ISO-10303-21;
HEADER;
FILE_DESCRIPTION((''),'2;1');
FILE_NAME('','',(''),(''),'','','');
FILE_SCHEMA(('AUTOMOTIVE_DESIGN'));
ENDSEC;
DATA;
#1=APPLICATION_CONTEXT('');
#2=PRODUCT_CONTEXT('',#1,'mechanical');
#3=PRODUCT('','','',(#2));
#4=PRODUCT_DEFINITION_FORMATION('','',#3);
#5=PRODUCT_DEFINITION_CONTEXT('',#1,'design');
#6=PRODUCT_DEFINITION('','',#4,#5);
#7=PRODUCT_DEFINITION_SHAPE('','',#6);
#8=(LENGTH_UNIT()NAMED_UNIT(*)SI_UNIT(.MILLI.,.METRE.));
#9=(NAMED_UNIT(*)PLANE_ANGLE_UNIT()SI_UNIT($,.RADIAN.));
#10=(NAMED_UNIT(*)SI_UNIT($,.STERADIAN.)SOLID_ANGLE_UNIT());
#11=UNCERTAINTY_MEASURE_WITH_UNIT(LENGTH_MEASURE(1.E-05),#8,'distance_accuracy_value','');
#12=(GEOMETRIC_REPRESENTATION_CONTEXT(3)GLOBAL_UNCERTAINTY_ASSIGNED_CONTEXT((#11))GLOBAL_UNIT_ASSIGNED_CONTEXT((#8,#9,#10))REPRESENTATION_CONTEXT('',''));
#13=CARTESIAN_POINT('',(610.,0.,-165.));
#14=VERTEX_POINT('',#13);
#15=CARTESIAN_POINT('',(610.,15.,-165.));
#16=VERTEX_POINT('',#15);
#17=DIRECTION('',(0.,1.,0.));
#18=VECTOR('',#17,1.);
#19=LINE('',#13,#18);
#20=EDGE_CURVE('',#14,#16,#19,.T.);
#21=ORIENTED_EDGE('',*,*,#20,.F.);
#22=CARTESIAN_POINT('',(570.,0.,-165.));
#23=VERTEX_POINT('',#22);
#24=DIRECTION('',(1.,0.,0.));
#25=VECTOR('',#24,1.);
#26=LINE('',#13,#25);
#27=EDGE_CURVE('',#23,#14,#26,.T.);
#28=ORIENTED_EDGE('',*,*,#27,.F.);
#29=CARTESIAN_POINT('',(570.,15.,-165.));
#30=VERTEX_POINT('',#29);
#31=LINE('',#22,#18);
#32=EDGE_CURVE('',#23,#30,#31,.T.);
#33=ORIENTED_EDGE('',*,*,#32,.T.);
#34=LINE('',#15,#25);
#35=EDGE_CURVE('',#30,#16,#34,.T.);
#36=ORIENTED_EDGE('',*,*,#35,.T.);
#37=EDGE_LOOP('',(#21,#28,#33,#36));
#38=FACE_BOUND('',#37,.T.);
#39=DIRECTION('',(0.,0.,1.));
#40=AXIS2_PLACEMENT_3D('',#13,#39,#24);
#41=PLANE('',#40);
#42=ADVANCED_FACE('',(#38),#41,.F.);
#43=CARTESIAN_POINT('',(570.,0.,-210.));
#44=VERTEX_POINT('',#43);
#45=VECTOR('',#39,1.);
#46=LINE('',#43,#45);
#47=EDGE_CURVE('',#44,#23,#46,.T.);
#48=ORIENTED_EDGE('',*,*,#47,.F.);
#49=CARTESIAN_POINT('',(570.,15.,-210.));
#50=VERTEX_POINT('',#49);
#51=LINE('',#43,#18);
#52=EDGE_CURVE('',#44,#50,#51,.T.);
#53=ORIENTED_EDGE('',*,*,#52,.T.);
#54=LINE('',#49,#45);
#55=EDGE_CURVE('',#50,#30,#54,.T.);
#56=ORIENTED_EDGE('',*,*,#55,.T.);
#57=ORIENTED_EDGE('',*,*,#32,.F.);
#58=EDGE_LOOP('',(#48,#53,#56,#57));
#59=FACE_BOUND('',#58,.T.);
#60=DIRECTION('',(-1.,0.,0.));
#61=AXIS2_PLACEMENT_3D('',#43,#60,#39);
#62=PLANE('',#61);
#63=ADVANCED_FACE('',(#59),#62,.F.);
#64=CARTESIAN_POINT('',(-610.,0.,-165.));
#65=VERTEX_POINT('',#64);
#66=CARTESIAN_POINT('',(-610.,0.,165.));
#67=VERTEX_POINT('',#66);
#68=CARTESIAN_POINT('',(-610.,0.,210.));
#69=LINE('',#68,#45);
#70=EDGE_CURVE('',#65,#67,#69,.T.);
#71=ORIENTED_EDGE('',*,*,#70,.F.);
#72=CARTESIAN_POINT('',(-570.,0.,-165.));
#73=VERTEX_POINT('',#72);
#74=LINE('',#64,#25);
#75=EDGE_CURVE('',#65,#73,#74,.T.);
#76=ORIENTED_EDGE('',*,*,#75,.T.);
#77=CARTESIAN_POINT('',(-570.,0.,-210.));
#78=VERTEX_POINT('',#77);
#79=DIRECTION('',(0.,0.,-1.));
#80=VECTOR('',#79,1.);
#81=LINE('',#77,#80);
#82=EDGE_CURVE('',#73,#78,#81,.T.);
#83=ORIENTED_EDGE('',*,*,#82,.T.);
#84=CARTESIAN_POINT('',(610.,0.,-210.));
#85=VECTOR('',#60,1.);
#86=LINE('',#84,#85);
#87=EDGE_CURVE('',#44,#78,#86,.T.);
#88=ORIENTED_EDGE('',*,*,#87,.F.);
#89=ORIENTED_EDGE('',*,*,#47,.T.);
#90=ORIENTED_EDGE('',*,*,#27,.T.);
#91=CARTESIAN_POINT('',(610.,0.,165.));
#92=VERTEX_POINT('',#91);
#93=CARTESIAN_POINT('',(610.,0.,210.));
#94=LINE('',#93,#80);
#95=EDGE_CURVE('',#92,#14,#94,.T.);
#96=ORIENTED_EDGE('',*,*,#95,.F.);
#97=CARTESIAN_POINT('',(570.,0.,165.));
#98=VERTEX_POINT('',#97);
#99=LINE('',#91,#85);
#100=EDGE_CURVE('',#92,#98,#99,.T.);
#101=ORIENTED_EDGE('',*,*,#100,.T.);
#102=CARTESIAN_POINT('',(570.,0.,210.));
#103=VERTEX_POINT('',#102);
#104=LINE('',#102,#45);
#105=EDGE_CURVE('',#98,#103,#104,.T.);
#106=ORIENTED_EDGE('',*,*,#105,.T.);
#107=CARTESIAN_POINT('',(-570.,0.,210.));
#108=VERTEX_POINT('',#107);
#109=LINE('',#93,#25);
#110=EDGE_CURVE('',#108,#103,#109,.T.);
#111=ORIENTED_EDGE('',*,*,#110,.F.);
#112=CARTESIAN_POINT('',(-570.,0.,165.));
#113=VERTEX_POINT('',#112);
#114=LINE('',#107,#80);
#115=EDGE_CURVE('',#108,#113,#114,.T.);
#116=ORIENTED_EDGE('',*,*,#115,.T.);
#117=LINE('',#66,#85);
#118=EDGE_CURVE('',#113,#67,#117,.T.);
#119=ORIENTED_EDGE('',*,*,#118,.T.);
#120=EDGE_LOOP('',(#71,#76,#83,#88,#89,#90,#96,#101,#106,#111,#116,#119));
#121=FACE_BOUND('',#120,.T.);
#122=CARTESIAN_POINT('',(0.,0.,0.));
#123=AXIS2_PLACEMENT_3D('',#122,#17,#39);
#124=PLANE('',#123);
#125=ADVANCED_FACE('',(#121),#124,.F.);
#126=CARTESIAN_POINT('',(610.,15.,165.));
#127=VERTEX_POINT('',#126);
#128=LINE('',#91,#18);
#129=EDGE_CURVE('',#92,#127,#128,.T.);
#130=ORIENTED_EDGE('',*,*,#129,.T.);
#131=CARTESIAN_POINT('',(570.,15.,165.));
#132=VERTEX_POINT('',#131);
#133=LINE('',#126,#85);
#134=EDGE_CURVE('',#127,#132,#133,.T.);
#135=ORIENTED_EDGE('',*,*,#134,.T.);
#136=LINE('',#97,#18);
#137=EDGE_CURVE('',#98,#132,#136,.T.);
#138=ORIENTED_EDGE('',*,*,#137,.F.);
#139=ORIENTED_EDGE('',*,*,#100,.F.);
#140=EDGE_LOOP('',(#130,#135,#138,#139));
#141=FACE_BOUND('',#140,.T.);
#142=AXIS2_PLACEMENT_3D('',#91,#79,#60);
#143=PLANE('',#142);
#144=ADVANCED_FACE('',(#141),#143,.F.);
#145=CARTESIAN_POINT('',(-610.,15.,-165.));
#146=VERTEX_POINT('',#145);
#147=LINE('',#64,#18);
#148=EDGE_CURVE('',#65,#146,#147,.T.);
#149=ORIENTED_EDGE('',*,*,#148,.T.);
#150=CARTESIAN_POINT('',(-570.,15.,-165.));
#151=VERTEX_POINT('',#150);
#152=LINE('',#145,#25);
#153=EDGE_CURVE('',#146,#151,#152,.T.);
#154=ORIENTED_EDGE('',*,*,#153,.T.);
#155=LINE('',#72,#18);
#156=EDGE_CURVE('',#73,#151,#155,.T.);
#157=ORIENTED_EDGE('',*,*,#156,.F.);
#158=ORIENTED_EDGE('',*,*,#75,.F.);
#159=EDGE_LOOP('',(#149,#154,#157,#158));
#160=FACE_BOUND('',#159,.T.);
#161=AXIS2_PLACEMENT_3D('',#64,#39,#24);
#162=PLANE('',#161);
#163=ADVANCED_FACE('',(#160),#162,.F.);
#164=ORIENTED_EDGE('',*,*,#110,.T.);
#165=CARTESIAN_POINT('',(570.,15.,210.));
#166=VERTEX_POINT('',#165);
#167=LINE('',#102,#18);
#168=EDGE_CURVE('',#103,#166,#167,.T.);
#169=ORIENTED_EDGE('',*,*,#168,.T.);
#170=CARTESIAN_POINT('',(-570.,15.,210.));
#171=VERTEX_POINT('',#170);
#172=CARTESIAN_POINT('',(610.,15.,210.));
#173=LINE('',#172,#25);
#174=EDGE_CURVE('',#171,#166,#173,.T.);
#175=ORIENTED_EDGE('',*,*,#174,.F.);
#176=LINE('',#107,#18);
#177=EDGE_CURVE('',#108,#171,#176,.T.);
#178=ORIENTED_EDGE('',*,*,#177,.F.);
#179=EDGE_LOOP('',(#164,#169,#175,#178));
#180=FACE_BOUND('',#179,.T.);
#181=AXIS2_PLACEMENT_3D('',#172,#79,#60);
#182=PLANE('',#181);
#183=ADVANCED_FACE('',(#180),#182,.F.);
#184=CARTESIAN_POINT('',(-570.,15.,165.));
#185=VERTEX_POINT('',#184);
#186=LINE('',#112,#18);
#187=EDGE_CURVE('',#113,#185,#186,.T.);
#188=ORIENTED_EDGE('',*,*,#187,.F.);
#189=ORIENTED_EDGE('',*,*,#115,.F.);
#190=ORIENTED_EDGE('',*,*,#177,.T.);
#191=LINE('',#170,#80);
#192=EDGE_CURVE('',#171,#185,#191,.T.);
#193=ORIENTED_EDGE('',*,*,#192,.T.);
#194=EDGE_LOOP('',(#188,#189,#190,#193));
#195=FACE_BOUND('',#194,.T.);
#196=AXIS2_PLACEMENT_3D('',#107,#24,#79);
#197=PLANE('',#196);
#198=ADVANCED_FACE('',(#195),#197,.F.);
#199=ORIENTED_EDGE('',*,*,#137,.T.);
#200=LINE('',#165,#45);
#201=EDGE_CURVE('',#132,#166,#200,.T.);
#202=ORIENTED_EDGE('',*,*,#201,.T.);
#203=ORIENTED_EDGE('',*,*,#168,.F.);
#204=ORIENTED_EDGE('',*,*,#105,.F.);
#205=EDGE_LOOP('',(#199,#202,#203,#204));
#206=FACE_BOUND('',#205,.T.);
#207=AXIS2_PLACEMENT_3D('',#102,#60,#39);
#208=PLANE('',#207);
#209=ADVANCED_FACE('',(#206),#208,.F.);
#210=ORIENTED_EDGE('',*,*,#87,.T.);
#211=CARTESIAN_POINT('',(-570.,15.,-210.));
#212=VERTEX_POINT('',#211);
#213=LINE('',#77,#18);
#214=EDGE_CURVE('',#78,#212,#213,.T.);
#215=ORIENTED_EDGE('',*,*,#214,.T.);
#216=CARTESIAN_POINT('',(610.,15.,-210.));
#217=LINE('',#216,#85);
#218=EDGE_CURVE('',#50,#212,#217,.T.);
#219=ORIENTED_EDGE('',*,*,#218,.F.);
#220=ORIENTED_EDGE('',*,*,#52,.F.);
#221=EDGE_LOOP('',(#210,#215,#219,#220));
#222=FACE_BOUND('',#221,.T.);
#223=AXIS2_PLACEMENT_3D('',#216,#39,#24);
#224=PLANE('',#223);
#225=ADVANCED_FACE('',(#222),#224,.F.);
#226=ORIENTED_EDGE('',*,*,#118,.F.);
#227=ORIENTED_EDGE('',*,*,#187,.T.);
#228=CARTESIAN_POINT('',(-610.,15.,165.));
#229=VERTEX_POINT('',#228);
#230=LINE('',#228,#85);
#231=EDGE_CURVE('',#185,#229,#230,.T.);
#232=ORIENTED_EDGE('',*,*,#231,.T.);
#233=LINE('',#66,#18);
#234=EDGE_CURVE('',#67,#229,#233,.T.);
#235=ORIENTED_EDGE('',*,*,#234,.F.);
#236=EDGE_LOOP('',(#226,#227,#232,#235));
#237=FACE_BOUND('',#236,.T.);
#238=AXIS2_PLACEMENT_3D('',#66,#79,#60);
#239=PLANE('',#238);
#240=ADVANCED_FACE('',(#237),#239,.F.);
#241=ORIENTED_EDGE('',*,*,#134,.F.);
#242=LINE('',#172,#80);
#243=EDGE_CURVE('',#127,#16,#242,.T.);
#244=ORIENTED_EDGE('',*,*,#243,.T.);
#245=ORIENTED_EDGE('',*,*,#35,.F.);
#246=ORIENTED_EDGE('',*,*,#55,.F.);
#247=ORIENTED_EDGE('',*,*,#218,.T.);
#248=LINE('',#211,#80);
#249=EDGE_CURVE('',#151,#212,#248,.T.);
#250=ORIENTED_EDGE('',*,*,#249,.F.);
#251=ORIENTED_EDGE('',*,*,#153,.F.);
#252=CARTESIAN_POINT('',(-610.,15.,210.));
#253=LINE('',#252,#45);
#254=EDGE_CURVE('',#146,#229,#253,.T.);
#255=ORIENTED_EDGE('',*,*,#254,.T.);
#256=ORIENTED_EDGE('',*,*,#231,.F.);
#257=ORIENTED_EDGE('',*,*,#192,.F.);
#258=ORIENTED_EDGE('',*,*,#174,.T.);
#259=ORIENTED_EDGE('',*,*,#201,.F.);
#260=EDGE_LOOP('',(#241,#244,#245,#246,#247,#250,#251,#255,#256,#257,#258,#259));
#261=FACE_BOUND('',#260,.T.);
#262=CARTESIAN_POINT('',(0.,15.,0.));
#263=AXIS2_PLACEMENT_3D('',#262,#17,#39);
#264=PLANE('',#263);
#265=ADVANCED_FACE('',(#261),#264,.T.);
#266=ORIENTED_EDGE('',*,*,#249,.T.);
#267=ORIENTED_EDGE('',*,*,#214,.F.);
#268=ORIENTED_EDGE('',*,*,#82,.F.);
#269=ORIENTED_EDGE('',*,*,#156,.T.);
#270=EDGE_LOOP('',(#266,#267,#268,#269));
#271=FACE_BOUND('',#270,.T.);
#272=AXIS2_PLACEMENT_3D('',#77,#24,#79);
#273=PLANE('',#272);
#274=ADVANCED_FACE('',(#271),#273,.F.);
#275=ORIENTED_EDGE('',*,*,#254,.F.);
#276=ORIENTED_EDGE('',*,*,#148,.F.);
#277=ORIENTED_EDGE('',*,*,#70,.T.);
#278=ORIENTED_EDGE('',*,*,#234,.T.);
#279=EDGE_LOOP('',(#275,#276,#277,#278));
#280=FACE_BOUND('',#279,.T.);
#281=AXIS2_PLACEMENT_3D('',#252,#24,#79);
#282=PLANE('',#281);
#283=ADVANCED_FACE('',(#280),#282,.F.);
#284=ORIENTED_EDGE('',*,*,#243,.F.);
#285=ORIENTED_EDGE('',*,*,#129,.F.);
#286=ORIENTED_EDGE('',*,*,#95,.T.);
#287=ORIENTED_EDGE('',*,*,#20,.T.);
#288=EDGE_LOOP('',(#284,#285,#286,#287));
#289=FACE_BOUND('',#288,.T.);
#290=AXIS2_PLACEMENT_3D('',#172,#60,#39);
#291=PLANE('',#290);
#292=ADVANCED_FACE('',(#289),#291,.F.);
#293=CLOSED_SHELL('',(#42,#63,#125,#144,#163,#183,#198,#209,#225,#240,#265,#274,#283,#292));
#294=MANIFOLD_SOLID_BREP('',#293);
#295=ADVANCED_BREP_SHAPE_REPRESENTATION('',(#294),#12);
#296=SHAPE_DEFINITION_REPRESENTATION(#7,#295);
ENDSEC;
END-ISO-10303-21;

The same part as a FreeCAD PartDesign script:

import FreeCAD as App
import Part
import Sketcher

V = App.Vector

doc = App.newDocument("Part")
body = doc.addObject("PartDesign::Body", "Body")

sketch1 = body.newObject("Sketcher::SketchObject", "Sketch")
sketch1.AttachmentSupport = (doc.getObject("XZ_Plane"), [""])
sketch1.MapMode = "FlatFace"
sketch1.addGeometry([
    Part.LineSegment(V(-610, -210, 0), V(-610, 210, 0)),
    Part.LineSegment(V(-610, 210, 0), V(610, 210, 0)),
    Part.LineSegment(V(610, 210, 0), V(610, -210, 0)),
    Part.LineSegment(V(610, -210, 0), V(-610, -210, 0)),
], False)
sketch1.addConstraint([
    Sketcher.Constraint("Coincident", 0, 2, 1, 1),
    Sketcher.Constraint("Coincident", 1, 2, 2, 1),
    Sketcher.Constraint("Coincident", 2, 2, 3, 1),
    Sketcher.Constraint("Coincident", 3, 2, 0, 1),
    Sketcher.Constraint("Vertical", 0),
    Sketcher.Constraint("Horizontal", 1),
    Sketcher.Constraint("Vertical", 2),
    Sketcher.Constraint("Horizontal", 3),
    Sketcher.Constraint("Symmetric", 0, 2, 2, 2, -1, 1),
    Sketcher.Constraint("DistanceX", 1, 1, 1, 2, 1220.0),
    Sketcher.Constraint("DistanceY", 0, 1, 0, 2, 420.0),
])
pad1 = body.newObject("PartDesign::Pad", "Pad")
pad1.Profile = sketch1
pad1.Length = 15
pad1.Reversed = True

sketch2 = body.newObject("Sketcher::SketchObject", "Sketch001")
sketch2.AttachmentSupport = (doc.getObject("XZ_Plane"), [""])
sketch2.MapMode = "FlatFace"
sketch2.AttachmentOffset = App.Placement(V(0, 0, -15), App.Rotation())
sketch2.addGeometry([
    Part.LineSegment(V(-610, -210, 0), V(-610, -165, 0)),
    Part.LineSegment(V(-610, -165, 0), V(-570, -165, 0)),
    Part.LineSegment(V(-570, -165, 0), V(-570, -210, 0)),
    Part.LineSegment(V(-570, -210, 0), V(-610, -210, 0)),
    Part.LineSegment(V(-610, 165, 0), V(-610, 210, 0)),
    Part.LineSegment(V(-610, 210, 0), V(-570, 210, 0)),
    Part.LineSegment(V(-570, 210, 0), V(-570, 165, 0)),
    Part.LineSegment(V(-570, 165, 0), V(-610, 165, 0)),
    Part.LineSegment(V(570, 165, 0), V(570, 210, 0)),
    Part.LineSegment(V(570, 210, 0), V(610, 210, 0)),
    Part.LineSegment(V(610, 210, 0), V(610, 165, 0)),
    Part.LineSegment(V(610, 165, 0), V(570, 165, 0)),
    Part.LineSegment(V(570, -210, 0), V(570, -165, 0)),
    Part.LineSegment(V(570, -165, 0), V(610, -165, 0)),
    Part.LineSegment(V(610, -165, 0), V(610, -210, 0)),
    Part.LineSegment(V(610, -210, 0), V(570, -210, 0)),
], False)
sketch2.addConstraint([
    Sketcher.Constraint("Coincident", 0, 2, 1, 1),
    Sketcher.Constraint("Coincident", 1, 2, 2, 1),
    Sketcher.Constraint("Coincident", 2, 2, 3, 1),
    Sketcher.Constraint("Coincident", 3, 2, 0, 1),
    Sketcher.Constraint("Coincident", 4, 2, 5, 1),
    Sketcher.Constraint("Coincident", 5, 2, 6, 1),
    Sketcher.Constraint("Coincident", 6, 2, 7, 1),
    Sketcher.Constraint("Coincident", 7, 2, 4, 1),
    Sketcher.Constraint("Coincident", 8, 2, 9, 1),
    Sketcher.Constraint("Coincident", 9, 2, 10, 1),
    Sketcher.Constraint("Coincident", 10, 2, 11, 1),
    Sketcher.Constraint("Coincident", 11, 2, 8, 1),
    Sketcher.Constraint("Coincident", 12, 2, 13, 1),
    Sketcher.Constraint("Coincident", 13, 2, 14, 1),
    Sketcher.Constraint("Coincident", 14, 2, 15, 1),
    Sketcher.Constraint("Coincident", 15, 2, 12, 1),
    Sketcher.Constraint("Vertical", 0),
    Sketcher.Constraint("Horizontal", 1),
    Sketcher.Constraint("Vertical", 2),
    Sketcher.Constraint("Horizontal", 3),
    Sketcher.Constraint("Vertical", 4),
    Sketcher.Constraint("Horizontal", 5),
    Sketcher.Constraint("Vertical", 6),
    Sketcher.Constraint("Horizontal", 7),
    Sketcher.Constraint("Vertical", 8),
    Sketcher.Constraint("Horizontal", 9),
    Sketcher.Constraint("Vertical", 10),
    Sketcher.Constraint("Horizontal", 11),
    Sketcher.Constraint("Vertical", 12),
    Sketcher.Constraint("Horizontal", 13),
    Sketcher.Constraint("Vertical", 14),
    Sketcher.Constraint("Horizontal", 15),
    Sketcher.Constraint("Symmetric", 2, 2, 8, 2, -1, 1),
    Sketcher.Constraint("Symmetric", 0, 2, 10, 2, -1, 1),
    Sketcher.Constraint("Symmetric", 6, 2, 12, 2, -1, 1),
    Sketcher.Constraint("Symmetric", 4, 2, 14, 2, -1, 1),
    Sketcher.Constraint("Symmetric", 5, 2, 8, 2, -2),
    Sketcher.Constraint("Symmetric", 7, 2, 10, 2, -2),
    Sketcher.Constraint("DistanceX", 1, 1, 1, 2, 40.0),
    Sketcher.Constraint("DistanceY", 0, 1, 0, 2, 45.0),
    Sketcher.Constraint("DistanceX", 0, 2, -1, 1, 610.0),
    Sketcher.Constraint("DistanceY", 0, 2, -1, 1, 165.0),
])
pocket1 = body.newObject("PartDesign::Pocket", "Pocket")
pocket1.Profile = sketch2
pocket1.Length = 15
pocket1.Reversed = True

doc.recompute()
